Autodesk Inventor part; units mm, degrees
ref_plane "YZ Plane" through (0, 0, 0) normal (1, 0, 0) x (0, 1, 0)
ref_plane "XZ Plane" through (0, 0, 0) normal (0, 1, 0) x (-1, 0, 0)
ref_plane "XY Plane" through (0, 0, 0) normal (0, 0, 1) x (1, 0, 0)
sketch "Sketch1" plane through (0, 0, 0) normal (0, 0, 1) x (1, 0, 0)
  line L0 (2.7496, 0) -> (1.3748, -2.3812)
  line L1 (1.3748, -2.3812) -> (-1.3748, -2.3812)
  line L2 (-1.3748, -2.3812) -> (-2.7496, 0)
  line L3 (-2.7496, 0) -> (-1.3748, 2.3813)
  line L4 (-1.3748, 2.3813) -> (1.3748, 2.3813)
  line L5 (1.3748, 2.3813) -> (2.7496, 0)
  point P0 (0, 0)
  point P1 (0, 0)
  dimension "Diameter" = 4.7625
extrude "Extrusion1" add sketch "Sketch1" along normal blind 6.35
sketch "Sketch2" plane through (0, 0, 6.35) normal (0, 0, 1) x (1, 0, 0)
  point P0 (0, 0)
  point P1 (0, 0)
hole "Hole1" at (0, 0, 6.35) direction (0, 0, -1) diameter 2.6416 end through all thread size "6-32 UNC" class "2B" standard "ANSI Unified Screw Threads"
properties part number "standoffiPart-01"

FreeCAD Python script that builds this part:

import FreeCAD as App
import Part
import Sketcher
Q = App.Units.Quantity


def add_polygon(sketch, points):
    """Adds a closed chain of lines whose ends are joined by coincident constraints."""
    first, n = sketch.GeometryCount, len(points)
    for a, b in zip(points, points[1:] + points[:1]):
        sketch.addGeometry(Part.LineSegment(App.Vector(*a, 0), App.Vector(*b, 0)), False)
    for i in range(n):
        sketch.addConstraint(Sketcher.Constraint("Coincident", first + i, 2, first + (i + 1) % n, 1))

doc = App.newDocument("Part")
body = doc.addObject("PartDesign::Body", "Body")

sketch1 = body.newObject("Sketcher::SketchObject", "Sketch")
sketch1.AttachmentSupport = (doc.getObject("XY_Plane"), [""])
sketch1.MapMode = "FlatFace"
add_polygon(sketch1, [(1.4, -2.4), (2.7, 0), (1.4, 2.4), (-1.4, 2.4), (-2.7, 0), (-1.4, -2.4)])
sketch1.addConstraint(Sketcher.Constraint("Horizontal", 2))
sketch1.addConstraint(Sketcher.Constraint("Horizontal", 5))
sketch1.addConstraint(Sketcher.Constraint("Symmetric", 0, 2, 3, 2, -1, 1))
sketch1.addConstraint(Sketcher.Constraint("Symmetric", 1, 2, 4, 2, -1, 1))
sketch1.addConstraint(Sketcher.Constraint("PointOnObject", 0, 2, -1))
sketch1.addConstraint(Sketcher.Constraint("Parallel", 0, 3))
sketch1.addConstraint(Sketcher.Constraint("Vertical", 2, 2, 4, 2))
sketch1.addConstraint(Sketcher.Constraint("Angle", 0, Q("59.9998 deg")))
sketch1.addConstraint(Sketcher.Constraint("DistanceY", 4, 2, 2, 2, Q("0.1875 in")))
sketch1.addConstraint(Sketcher.Constraint("DistanceX", 2, 2, 2, 1, 2.7496))
pad1 = body.newObject("PartDesign::Pad", "Pad")
pad1.Profile = sketch1
pad1.Length = Q("0.25 in")

sketch2 = body.newObject("Sketcher::SketchObject", "Sketch001")
sketch2.AttachmentSupport = (doc.getObject("XY_Plane"), [""])
sketch2.MapMode = "FlatFace"
sketch2.AttachmentOffset = App.Placement(App.Vector(0, 0, 0.25 * 25.4), App.Rotation())
sketch2.addGeometry(Part.Circle(App.Vector(0, 0, 0), App.Vector(0, 0, 1), 1.3), False)
sketch2.addConstraint(Sketcher.Constraint("Coincident", 0, 3, -1, 1))
sketch2.addConstraint(Sketcher.Constraint("Diameter", 0, Q("0.104 in")))
doc.recompute()
hole = body.newObject("PartDesign::Hole", "Hole")
hole.Profile = sketch2
hole.ThreadType = "None"
hole.Diameter = Q("0.104 in")
hole.DepthType = "ThroughAll"

doc.recompute()
